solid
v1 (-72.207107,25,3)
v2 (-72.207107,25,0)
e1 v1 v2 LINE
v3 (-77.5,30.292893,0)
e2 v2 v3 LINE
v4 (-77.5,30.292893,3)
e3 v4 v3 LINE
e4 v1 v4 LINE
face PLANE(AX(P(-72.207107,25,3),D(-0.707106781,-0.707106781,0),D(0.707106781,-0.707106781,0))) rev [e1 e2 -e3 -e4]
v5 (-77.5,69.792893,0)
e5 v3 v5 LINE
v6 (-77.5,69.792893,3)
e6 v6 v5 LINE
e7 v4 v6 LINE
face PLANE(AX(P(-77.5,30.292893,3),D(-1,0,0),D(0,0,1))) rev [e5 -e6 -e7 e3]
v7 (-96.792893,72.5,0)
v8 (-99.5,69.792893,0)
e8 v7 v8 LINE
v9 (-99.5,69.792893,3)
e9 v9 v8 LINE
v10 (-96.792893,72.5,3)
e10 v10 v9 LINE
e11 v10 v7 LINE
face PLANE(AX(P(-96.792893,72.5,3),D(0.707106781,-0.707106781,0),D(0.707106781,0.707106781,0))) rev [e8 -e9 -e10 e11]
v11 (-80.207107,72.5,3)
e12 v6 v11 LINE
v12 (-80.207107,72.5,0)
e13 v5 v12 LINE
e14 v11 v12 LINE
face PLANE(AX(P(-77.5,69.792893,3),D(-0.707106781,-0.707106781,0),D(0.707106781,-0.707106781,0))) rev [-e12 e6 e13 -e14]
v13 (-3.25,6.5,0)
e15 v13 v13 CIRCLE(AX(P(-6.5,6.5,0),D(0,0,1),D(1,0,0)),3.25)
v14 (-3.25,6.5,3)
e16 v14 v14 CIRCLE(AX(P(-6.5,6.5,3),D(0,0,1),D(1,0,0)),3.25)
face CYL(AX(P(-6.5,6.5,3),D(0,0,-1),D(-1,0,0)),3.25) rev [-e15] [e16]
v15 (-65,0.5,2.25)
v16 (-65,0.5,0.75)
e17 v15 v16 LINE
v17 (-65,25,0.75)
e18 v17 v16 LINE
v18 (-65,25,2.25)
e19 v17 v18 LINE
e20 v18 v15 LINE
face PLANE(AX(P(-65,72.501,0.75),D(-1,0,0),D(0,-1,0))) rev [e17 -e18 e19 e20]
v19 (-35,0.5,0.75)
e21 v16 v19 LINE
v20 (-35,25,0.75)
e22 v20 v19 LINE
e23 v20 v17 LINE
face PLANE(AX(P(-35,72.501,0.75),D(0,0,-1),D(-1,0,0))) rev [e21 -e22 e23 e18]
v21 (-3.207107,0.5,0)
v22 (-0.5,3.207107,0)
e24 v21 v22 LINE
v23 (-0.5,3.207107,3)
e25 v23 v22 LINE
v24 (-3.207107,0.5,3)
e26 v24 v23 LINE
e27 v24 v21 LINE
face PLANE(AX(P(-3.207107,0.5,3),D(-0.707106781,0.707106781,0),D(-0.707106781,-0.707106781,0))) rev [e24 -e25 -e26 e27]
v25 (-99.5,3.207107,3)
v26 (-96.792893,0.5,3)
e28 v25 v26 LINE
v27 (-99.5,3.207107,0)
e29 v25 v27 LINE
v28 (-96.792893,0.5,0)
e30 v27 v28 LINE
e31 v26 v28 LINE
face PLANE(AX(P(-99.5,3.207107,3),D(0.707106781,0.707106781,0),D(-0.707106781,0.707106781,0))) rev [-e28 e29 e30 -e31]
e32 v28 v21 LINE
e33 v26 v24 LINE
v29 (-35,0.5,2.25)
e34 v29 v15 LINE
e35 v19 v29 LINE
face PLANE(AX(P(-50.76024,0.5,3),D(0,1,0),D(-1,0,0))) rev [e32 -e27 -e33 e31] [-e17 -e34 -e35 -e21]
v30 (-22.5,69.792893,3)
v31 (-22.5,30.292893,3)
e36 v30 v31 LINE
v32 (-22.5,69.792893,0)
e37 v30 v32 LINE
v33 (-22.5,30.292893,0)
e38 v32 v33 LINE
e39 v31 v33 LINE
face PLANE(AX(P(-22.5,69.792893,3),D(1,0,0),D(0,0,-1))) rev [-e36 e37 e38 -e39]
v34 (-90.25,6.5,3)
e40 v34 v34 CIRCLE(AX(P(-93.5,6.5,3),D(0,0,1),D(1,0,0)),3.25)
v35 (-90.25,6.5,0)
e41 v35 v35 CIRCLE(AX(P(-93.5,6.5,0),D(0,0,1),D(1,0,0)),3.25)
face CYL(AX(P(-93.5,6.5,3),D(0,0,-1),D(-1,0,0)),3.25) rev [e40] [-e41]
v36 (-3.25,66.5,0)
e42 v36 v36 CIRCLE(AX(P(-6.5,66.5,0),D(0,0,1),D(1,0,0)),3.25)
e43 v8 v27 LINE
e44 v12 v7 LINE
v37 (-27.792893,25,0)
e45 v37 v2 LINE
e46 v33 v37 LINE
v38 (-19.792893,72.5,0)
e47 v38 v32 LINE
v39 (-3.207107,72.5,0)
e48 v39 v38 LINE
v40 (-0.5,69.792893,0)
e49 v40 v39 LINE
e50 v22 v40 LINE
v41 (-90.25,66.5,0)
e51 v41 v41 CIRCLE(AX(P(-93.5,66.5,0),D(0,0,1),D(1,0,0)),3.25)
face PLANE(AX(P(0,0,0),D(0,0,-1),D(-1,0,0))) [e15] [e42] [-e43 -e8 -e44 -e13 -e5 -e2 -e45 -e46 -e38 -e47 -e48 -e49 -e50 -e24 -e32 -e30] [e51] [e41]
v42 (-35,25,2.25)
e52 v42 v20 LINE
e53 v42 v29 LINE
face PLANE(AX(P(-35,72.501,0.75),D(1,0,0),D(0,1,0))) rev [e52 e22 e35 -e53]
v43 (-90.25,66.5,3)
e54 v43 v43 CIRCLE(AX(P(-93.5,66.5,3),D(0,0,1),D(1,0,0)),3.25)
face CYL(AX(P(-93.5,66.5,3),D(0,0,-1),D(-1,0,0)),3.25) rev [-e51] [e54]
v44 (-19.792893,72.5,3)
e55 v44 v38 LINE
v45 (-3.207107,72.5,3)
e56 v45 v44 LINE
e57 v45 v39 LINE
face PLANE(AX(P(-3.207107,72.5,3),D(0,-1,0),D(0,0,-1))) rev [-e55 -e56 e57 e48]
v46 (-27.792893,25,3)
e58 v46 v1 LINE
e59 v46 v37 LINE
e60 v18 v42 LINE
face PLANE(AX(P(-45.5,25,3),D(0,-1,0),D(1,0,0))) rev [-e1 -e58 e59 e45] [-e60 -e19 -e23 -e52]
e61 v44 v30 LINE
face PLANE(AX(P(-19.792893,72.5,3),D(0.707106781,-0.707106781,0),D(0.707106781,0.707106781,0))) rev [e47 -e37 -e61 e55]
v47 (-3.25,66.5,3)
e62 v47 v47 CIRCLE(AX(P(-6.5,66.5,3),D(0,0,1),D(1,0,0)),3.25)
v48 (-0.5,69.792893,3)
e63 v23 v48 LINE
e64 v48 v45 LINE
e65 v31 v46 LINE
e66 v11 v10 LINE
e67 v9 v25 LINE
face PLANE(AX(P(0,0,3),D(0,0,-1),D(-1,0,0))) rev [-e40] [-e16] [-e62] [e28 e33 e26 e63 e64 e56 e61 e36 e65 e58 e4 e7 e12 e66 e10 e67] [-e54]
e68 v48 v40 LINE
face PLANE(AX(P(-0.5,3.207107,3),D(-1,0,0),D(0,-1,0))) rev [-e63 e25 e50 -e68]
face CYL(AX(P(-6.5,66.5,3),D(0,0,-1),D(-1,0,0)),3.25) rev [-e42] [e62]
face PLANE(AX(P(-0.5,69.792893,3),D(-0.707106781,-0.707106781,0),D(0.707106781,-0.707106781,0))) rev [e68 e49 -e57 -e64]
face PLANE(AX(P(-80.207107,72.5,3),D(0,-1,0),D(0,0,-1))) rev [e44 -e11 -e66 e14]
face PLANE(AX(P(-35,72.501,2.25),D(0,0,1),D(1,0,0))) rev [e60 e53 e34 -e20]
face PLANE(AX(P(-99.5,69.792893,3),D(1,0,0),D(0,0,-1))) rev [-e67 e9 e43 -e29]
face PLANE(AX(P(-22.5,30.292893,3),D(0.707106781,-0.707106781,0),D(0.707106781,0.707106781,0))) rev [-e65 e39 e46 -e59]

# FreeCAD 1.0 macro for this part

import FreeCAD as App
import Part
import Sketcher

doc = App.newDocument("Part")
body = doc.addObject("PartDesign::Body", "Body")

# Sketch on XY plane
sketch1 = body.newObject("Sketcher::SketchObject", "Sketch")
sketch1.AttachmentSupport = (doc.getObject("XY_Plane"), [""])
sketch1.MapMode = "FlatFace"
sketch1.addGeometry(Part.LineSegment(App.Vector(-27.8, 25, 0), App.Vector(-72.2, 25, 0)), False)
sketch1.addGeometry(Part.LineSegment(App.Vector(-72.2, 25, 0), App.Vector(-77.5, 30.3, 0)), False)
sketch1.addGeometry(Part.LineSegment(App.Vector(-77.5, 30.3, 0), App.Vector(-77.5, 69.8, 0)), False)
sketch1.addGeometry(Part.LineSegment(App.Vector(-77.5, 69.8, 0), App.Vector(-80.2, 72.5, 0)), False)
sketch1.addGeometry(Part.LineSegment(App.Vector(-80.2, 72.5, 0), App.Vector(-96.8, 72.5, 0)), False)
sketch1.addGeometry(Part.LineSegment(App.Vector(-96.8, 72.5, 0), App.Vector(-99.5, 69.8, 0)), False)
sketch1.addGeometry(Part.LineSegment(App.Vector(-99.5, 69.8, 0), App.Vector(-99.5, 3.2, 0)), False)
sketch1.addGeometry(Part.LineSegment(App.Vector(-99.5, 3.2, 0), App.Vector(-96.8, 0.5, 0)), False)
sketch1.addGeometry(Part.LineSegment(App.Vector(-96.8, 0.5, 0), App.Vector(-3.2, 0.5, 0)), False)
sketch1.addGeometry(Part.LineSegment(App.Vector(-3.2, 0.5, 0), App.Vector(-0.5, 3.2, 0)), False)
sketch1.addGeometry(Part.LineSegment(App.Vector(-0.5, 3.2, 0), App.Vector(-0.5, 69.8, 0)), False)
sketch1.addGeometry(Part.LineSegment(App.Vector(-0.5, 69.8, 0), App.Vector(-3.2, 72.5, 0)), False)
sketch1.addGeometry(Part.LineSegment(App.Vector(-3.2, 72.5, 0), App.Vector(-19.8, 72.5, 0)), False)
sketch1.addGeometry(Part.LineSegment(App.Vector(-19.8, 72.5, 0), App.Vector(-22.5, 69.8, 0)), False)
sketch1.addGeometry(Part.LineSegment(App.Vector(-22.5, 69.8, 0), App.Vector(-22.5, 30.3, 0)), False)
sketch1.addGeometry(Part.LineSegment(App.Vector(-22.5, 30.3, 0), App.Vector(-27.8, 25, 0)), False)
sketch1.addGeometry(Part.Circle(App.Vector(-93.5, 6.5, 0), App.Vector(0, 0, 1), 3.2), False)
sketch1.addGeometry(Part.Circle(App.Vector(-6.5, 6.5, 0), App.Vector(0, 0, 1), 3.2), False)
sketch1.addGeometry(Part.Circle(App.Vector(-93.5, 66.5, 0), App.Vector(0, 0, 1), 3.2), False)
sketch1.addGeometry(Part.Circle(App.Vector(-6.5, 66.5, 0), App.Vector(0, 0, 1), 3.2), False)
sketch1.addConstraint(Sketcher.Constraint("Coincident", 0, 2, 1, 1))
sketch1.addConstraint(Sketcher.Constraint("Coincident", 1, 2, 2, 1))
sketch1.addConstraint(Sketcher.Constraint("Coincident", 2, 2, 3, 1))
sketch1.addConstraint(Sketcher.Constraint("Coincident", 3, 2, 4, 1))
sketch1.addConstraint(Sketcher.Constraint("Coincident", 4, 2, 5, 1))
sketch1.addConstraint(Sketcher.Constraint("Coincident", 5, 2, 6, 1))
sketch1.addConstraint(Sketcher.Constraint("Coincident", 6, 2, 7, 1))
sketch1.addConstraint(Sketcher.Constraint("Coincident", 7, 2, 8, 1))
sketch1.addConstraint(Sketcher.Constraint("Coincident", 8, 2, 9, 1))
sketch1.addConstraint(Sketcher.Constraint("Coincident", 9, 2, 10, 1))
sketch1.addConstraint(Sketcher.Constraint("Coincident", 10, 2, 11, 1))
sketch1.addConstraint(Sketcher.Constraint("Coincident", 11, 2, 12, 1))
sketch1.addConstraint(Sketcher.Constraint("Coincident", 12, 2, 13, 1))
sketch1.addConstraint(Sketcher.Constraint("Coincident", 13, 2, 14, 1))
sketch1.addConstraint(Sketcher.Constraint("Coincident", 14, 2, 15, 1))
sketch1.addConstraint(Sketcher.Constraint("Coincident", 15, 2, 0, 1))
sketch1.addConstraint(Sketcher.Constraint("Horizontal", 0))
sketch1.addConstraint(Sketcher.Constraint("Vertical", 2))
sketch1.addConstraint(Sketcher.Constraint("Horizontal", 4))
sketch1.addConstraint(Sketcher.Constraint("Vertical", 6))
sketch1.addConstraint(Sketcher.Constraint("Horizontal", 8))
sketch1.addConstraint(Sketcher.Constraint("Vertical", 10))
sketch1.addConstraint(Sketcher.Constraint("Horizontal", 12))
sketch1.addConstraint(Sketcher.Constraint("Vertical", 14))
sketch1.addConstraint(Sketcher.Constraint("Equal", 16, 17))
sketch1.addConstraint(Sketcher.Constraint("Equal", 17, 18))
sketch1.addConstraint(Sketcher.Constraint("Equal", 18, 19))
sketch1.addConstraint(Sketcher.Constraint("Parallel", 1, 3))
sketch1.addConstraint(Sketcher.Constraint("Perpendicular", 3, 5))
sketch1.addConstraint(Sketcher.Constraint("Perpendicular", 5, 7))
sketch1.addConstraint(Sketcher.Constraint("Perpendicular", 7, 9))
sketch1.addConstraint(Sketcher.Constraint("Perpendicular", 9, 11))
sketch1.addConstraint(Sketcher.Constraint("Perpendicular", 11, 13))
sketch1.addConstraint(Sketcher.Constraint("Parallel", 13, 15))
sketch1.addConstraint(Sketcher.Constraint("Horizontal", 16, 3, 17, 3))
sketch1.addConstraint(Sketcher.Constraint("Horizontal", 18, 3, 19, 3))
sketch1.addConstraint(Sketcher.Constraint("Horizontal", 2, 2, 5, 2))
sketch1.addConstraint(Sketcher.Constraint("Horizontal", 6, 2, 9, 2))
sketch1.addConstraint(Sketcher.Constraint("Horizontal", 5, 2, 10, 2))
sketch1.addConstraint(Sketcher.Constraint("Horizontal", 4, 2, 11, 2))
sketch1.addConstraint(Sketcher.Constraint("Horizontal", 10, 2, 13, 2))
sketch1.addConstraint(Sketcher.Constraint("Horizontal", 1, 2, 14, 2))
sketch1.addConstraint(Sketcher.Constraint("Vertical", 16, 3, 18, 3))
sketch1.addConstraint(Sketcher.Constraint("Vertical", 17, 3, 19, 3))
sketch1.addConstraint(Sketcher.Constraint("Vertical", 4, 2, 7, 2))
sketch1.addConstraint(Sketcher.Constraint("Vertical", 8, 2, 11, 2))
sketch1.addConstraint(Sketcher.Constraint("Equal", 4, 12))
sketch1.addConstraint(Sketcher.Constraint("Diameter", 16, 6.5))
sketch1.addConstraint(Sketcher.Constraint("DistanceY", 2, 1, 2, 2, 39.5))
sketch1.addConstraint(Sketcher.Constraint("DistanceY", -1, 1, 0, 2, 25.0))
sketch1.addConstraint(Sketcher.Constraint("DistanceX", 16, 3, 17, 3, 87.0))
sketch1.addConstraint(Sketcher.Constraint("DistanceY", 16, 3, 18, 3, 60.0))
sketch1.addConstraint(Sketcher.Constraint("DistanceX", 16, 3, 1, 2, 16.0))
sketch1.addConstraint(Sketcher.Constraint("DistanceY", 18, 3, 3, 2, 6.0))
sketch1.addConstraint(Sketcher.Constraint("DistanceX", 3, 2, 0, 2, 8.0))
sketch1.addConstraint(Sketcher.Constraint("DistanceX", 5, 2, 18, 3, 6.0))
sketch1.addConstraint(Sketcher.Constraint("DistanceY", 7, 2, 16, 3, 6.0))
sketch1.addConstraint(Sketcher.Constraint("DistanceX", 0, 2, 8, 2, 69.0))
sketch1.addConstraint(Sketcher.Constraint("DistanceX", 16, 3, -1, 1, 93.5))
sketch1.addConstraint(Sketcher.Constraint("Distance", 1, 7.485281))
pad1 = body.newObject("PartDesign::Pad", "Pad")
pad1.Profile = sketch1
pad1.Length = 3

# Sketch on XZ plane
sketch2 = body.newObject("Sketcher::SketchObject", "Sketch001")
sketch2.AttachmentSupport = (doc.getObject("XZ_Plane"), [""])
sketch2.MapMode = "FlatFace"
sketch2.AttachmentOffset = App.Placement(App.Vector(0, 0, -0.5), App.Rotation())
sketch2.addGeometry(Part.LineSegment(App.Vector(-65, 2.2, 0), App.Vector(-65, 0.8, 0)), False)
sketch2.addGeometry(Part.LineSegment(App.Vector(-65, 0.8, 0), App.Vector(-35, 0.8, 0)), False)
sketch2.addGeometry(Part.LineSegment(App.Vector(-35, 0.8, 0), App.Vector(-35, 2.2, 0)), False)
sketch2.addGeometry(Part.LineSegment(App.Vector(-35, 2.2, 0), App.Vector(-65, 2.2, 0)), False)
sketch2.addConstraint(Sketcher.Constraint("Coincident", 0, 2, 1, 1))
sketch2.addConstraint(Sketcher.Constraint("Coincident", 1, 2, 2, 1))
sketch2.addConstraint(Sketcher.Constraint("Coincident", 2, 2, 3, 1))
sketch2.addConstraint(Sketcher.Constraint("Coincident", 3, 2, 0, 1))
sketch2.addConstraint(Sketcher.Constraint("Vertical", 0))
sketch2.addConstraint(Sketcher.Constraint("Horizontal", 1))
sketch2.addConstraint(Sketcher.Constraint("Vertical", 2))
sketch2.addConstraint(Sketcher.Constraint("Horizontal", 3))
sketch2.addConstraint(Sketcher.Constraint("DistanceX", 1, 1, 1, 2, 30.0))
sketch2.addConstraint(Sketcher.Constraint("DistanceY", 0, 2, 0, 1, 1.5))
sketch2.addConstraint(Sketcher.Constraint("DistanceX", 0, 2, -1, 1, 65.0))
sketch2.addConstraint(Sketcher.Constraint("DistanceY", -1, 1, 0, 2, 0.75))
pocket1 = body.newObject("PartDesign::Pocket", "Pocket")
pocket1.Profile = sketch2
pocket1.Type = "UpToFirst"

doc.recompute()
